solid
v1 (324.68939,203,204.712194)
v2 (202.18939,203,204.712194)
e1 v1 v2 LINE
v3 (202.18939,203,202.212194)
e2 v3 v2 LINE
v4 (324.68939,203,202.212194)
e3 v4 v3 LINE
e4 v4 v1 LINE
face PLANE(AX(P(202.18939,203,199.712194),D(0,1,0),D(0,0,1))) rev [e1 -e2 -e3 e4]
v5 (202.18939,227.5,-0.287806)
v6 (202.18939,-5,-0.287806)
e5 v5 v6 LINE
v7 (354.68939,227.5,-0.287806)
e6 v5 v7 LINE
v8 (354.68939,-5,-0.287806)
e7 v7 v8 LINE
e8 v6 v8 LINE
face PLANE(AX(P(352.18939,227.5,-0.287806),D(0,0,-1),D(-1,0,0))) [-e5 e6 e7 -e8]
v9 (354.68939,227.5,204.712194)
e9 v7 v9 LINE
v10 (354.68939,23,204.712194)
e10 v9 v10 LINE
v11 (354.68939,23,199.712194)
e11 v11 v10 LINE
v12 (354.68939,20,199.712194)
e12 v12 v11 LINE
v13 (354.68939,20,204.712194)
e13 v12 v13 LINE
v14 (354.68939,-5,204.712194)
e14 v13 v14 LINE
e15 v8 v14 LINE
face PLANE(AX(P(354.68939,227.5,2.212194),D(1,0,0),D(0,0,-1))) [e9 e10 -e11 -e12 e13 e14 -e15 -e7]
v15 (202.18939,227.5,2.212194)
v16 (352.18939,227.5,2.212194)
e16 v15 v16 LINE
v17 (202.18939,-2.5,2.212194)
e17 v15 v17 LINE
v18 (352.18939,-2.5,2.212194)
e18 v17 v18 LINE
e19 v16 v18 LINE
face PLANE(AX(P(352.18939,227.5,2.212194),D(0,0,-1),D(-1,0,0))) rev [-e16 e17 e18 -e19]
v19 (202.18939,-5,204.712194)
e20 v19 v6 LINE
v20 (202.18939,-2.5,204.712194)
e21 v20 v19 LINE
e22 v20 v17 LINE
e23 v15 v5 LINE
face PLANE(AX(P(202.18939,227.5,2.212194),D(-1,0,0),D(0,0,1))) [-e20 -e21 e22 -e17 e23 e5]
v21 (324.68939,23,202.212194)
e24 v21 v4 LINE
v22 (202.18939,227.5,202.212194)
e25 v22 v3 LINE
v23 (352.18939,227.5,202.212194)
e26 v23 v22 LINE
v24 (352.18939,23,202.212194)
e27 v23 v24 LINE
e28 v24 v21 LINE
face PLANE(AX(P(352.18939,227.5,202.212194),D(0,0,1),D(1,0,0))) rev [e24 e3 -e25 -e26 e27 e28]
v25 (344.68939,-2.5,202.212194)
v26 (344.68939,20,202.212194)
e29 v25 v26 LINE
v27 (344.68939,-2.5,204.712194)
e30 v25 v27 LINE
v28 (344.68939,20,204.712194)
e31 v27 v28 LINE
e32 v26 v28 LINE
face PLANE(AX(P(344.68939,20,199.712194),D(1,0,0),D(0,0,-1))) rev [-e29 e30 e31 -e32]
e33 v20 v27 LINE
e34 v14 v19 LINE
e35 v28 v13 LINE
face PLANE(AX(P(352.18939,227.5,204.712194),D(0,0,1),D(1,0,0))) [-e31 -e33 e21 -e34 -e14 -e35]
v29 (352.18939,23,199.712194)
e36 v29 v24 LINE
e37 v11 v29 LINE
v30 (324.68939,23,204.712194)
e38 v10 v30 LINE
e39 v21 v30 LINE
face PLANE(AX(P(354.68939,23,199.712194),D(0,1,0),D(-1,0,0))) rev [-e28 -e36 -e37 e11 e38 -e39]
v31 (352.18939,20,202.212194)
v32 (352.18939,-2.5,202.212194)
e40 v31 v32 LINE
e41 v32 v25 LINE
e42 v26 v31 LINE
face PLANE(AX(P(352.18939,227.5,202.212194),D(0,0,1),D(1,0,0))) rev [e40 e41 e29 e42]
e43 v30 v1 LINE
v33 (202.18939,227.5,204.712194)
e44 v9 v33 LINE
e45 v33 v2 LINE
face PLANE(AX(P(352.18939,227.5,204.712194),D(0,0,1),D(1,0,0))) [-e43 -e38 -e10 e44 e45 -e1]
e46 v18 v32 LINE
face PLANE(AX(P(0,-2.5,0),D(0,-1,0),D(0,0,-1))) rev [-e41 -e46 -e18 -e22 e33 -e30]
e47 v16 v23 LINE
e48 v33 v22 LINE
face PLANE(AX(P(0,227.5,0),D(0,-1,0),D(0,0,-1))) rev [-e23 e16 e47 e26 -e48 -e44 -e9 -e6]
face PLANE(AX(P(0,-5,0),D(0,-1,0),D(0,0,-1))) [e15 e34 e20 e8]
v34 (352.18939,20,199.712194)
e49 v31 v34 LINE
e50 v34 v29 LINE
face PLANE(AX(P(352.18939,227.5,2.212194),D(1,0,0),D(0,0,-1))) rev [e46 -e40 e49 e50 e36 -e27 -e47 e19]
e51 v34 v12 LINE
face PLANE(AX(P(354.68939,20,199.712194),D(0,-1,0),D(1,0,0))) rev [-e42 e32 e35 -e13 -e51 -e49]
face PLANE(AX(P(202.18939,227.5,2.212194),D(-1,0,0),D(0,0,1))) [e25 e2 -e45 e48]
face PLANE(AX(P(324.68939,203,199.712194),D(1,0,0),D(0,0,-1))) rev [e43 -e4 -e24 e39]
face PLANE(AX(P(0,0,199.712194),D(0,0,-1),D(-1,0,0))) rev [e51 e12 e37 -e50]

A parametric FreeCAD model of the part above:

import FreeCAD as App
import Part
import Sketcher

V = App.Vector


def faces_at(feature, points):
    """Names of the faces that lie closest to the given points."""
    faces = feature.Shape.Faces
    near = lambda p: min(range(len(faces)), key=lambda i: faces[i].distToShape(Part.Vertex(*p))[0])
    return sorted({f"Face{near(p) + 1}" for p in points})

doc = App.newDocument("Part")
body = doc.addObject("PartDesign::Body", "Body")

sketch1 = doc.addObject("Sketcher::SketchObject", "Sketch")
body.addObject(sketch1)
sketch1.AttachmentSupport = (doc.XZ_Plane, [""])
sketch1.MapMode = "FlatFace"
sketch1.AttachmentOffset = App.Placement(V(0, 0, 2.5), App.Rotation())
sketch1.addGeometry([
    Part.LineSegment(V(352, 2, 0), V(352, 202, 0)),
    Part.LineSegment(V(352, 202, 0), V(202, 202, 0)),
    Part.LineSegment(V(202, 202, 0), V(202, 2, 0)),
    Part.LineSegment(V(202, 2, 0), V(352, 2, 0)),
], False)
sketch1.addConstraint([
    Sketcher.Constraint("Coincident", 0, 2, 1, 1),
    Sketcher.Constraint("Coincident", 1, 2, 2, 1),
    Sketcher.Constraint("Coincident", 2, 2, 3, 1),
    Sketcher.Constraint("Coincident", 3, 2, 0, 1),
    Sketcher.Constraint("Vertical", 0),
    Sketcher.Constraint("Horizontal", 1),
    Sketcher.Constraint("Vertical", 2),
    Sketcher.Constraint("Horizontal", 3),
    Sketcher.Constraint("DistanceX", 1, 2, 1, 1, 150.0),
    Sketcher.Constraint("DistanceY", 0, 1, 0, 2, 200.0),
    Sketcher.Constraint("DistanceX", -1, 1, 0, 2, 352.18939),
    Sketcher.Constraint("DistanceY", -1, 1, 0, 2, 202.212194),
])
pad1 = doc.addObject("PartDesign::Pad", "Pad")
body.addObject(pad1)
pad1.Profile = sketch1
pad1.Length = 230
pad1.Reversed = True
doc.recompute()

thickness = doc.addObject("PartDesign::Thickness", "Thickness")
body.addObject(thickness)
thickness.Base = (pad1, faces_at(pad1, [(202.189, 112.5, 102.212), (277.189, 227.5, 102.212)]))
thickness.Value = 2.5
thickness.Reversed = False
thickness.Join = "Intersection"

sketch2 = doc.addObject("Sketcher::SketchObject", "Sketch001")
body.addObject(sketch2)
sketch2.AttachmentSupport = (doc.XY_Plane, [""])
sketch2.MapMode = "FlatFace"
sketch2.AttachmentOffset = App.Placement(V(0, 0, 204.712194), App.Rotation())
sketch2.addGeometry([
    Part.LineSegment(V(354.7, 23, 0), V(324.7, 23, 0)),
    Part.LineSegment(V(324.7, 23, 0), V(324.7, 203, 0)),
    Part.LineSegment(V(324.7, 203, 0), V(202.2, 203, 0)),
    Part.LineSegment(V(202.2, 203, 0), V(202.2, 20, 0)),
    Part.LineSegment(V(202.2, 20, 0), V(354.7, 20, 0)),
    Part.LineSegment(V(354.7, 20, 0), V(354.7, 23, 0)),
], False)
sketch2.addConstraint([
    Sketcher.Constraint("Coincident", 0, 2, 1, 1),
    Sketcher.Constraint("Coincident", 1, 2, 2, 1),
    Sketcher.Constraint("Coincident", 2, 2, 3, 1),
    Sketcher.Constraint("Coincident", 3, 2, 4, 1),
    Sketcher.Constraint("Coincident", 4, 2, 5, 1),
    Sketcher.Constraint("Coincident", 5, 2, 0, 1),
    Sketcher.Constraint("Horizontal", 0),
    Sketcher.Constraint("Vertical", 1),
    Sketcher.Constraint("Horizontal", 2),
    Sketcher.Constraint("Vertical", 3),
    Sketcher.Constraint("Horizontal", 4),
    Sketcher.Constraint("Vertical", 5),
    Sketcher.Constraint("DistanceX", 0, 2, 0, 1, 30.0),
    Sketcher.Constraint("DistanceY", 1, 1, 1, 2, 180.0),
    Sketcher.Constraint("DistanceY", 3, 2, 3, 1, 183.0),
    Sketcher.Constraint("DistanceX", 2, 2, 2, 1, 122.5),
    Sketcher.Constraint("DistanceY", -1, 1, 0, 2, 23.0),
    Sketcher.Constraint("DistanceX", -1, 1, 0, 2, 324.68939),
])
pocket1 = doc.addObject("PartDesign::Pocket", "Pocket")
body.addObject(pocket1)
pocket1.Profile = sketch2
pocket1.Length = 5

sketch3 = doc.addObject("Sketcher::SketchObject", "Sketch002")
body.addObject(sketch3)
sketch3.AttachmentSupport = (doc.XY_Plane, [""])
sketch3.MapMode = "FlatFace"
sketch3.AttachmentOffset = App.Placement(V(0, 0, 204.712194), App.Rotation())
sketch3.addGeometry([
    Part.LineSegment(V(202, 20, 0), V(202, -2, 0)),
    Part.LineSegment(V(202, -2, 0), V(345, -2, 0)),
    Part.LineSegment(V(345, -2, 0), V(345, 20, 0)),
    Part.LineSegment(V(345, 20, 0), V(202, 20, 0)),
], False)
sketch3.addConstraint([
    Sketcher.Constraint("Coincident", 0, 2, 1, 1),
    Sketcher.Constraint("Coincident", 1, 2, 2, 1),
    Sketcher.Constraint("Coincident", 2, 2, 3, 1),
    Sketcher.Constraint("Coincident", 3, 2, 0, 1),
    Sketcher.Constraint("Vertical", 0),
    Sketcher.Constraint("Horizontal", 1),
    Sketcher.Constraint("Vertical", 2),
    Sketcher.Constraint("Horizontal", 3),
    Sketcher.Constraint("DistanceX", 1, 1, 1, 2, 142.5),
    Sketcher.Constraint("DistanceY", 0, 2, 0, 1, 22.5),
    Sketcher.Constraint("DistanceY", -1, 1, 2, 2, 20.0),
    Sketcher.Constraint("DistanceX", -1, 1, 0, 2, 202.18939),
])
pocket2 = doc.addObject("PartDesign::Pocket", "Pocket001")
body.addObject(pocket2)
pocket2.Profile = sketch3
pocket2.Length = 5

doc.recompute()
